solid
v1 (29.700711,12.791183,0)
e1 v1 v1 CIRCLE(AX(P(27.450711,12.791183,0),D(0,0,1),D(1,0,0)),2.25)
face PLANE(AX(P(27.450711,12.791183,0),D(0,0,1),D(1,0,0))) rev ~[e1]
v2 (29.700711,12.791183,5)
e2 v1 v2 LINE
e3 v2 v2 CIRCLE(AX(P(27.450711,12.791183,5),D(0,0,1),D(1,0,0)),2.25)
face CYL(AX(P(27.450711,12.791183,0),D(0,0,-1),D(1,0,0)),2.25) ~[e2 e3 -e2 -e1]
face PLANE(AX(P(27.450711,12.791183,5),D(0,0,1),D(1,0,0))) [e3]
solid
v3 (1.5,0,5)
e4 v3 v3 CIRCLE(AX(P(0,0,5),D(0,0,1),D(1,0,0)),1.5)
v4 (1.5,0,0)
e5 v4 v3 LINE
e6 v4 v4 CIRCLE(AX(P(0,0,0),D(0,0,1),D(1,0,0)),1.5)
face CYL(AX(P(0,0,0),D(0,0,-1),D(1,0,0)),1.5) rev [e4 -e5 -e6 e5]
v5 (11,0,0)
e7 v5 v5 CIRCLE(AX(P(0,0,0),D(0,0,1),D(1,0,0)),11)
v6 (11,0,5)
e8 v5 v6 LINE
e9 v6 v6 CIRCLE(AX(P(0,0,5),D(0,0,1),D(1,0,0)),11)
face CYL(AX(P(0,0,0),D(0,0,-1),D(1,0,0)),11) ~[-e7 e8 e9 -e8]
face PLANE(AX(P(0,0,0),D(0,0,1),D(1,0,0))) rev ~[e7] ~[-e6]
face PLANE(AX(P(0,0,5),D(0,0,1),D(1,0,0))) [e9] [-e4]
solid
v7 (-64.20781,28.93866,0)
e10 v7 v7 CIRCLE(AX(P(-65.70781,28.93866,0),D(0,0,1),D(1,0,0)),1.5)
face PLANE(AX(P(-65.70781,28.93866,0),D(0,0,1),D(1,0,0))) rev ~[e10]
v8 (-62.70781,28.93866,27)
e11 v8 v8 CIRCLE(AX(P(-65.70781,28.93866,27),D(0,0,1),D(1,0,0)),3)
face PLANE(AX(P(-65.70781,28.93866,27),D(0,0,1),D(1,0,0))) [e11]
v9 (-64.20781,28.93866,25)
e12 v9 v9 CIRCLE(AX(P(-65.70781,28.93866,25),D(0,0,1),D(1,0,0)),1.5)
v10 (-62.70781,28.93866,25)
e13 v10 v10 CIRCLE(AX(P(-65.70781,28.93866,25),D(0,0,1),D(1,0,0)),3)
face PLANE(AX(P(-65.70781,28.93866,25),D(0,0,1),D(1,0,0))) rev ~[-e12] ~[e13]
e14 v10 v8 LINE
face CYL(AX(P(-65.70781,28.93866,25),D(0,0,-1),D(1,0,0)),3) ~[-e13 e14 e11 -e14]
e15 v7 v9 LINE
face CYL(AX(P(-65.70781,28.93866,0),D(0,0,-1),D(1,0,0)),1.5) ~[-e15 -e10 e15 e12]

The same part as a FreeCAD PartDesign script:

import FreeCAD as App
import Part
import Sketcher
from FreeCAD import Vector
Q = App.Units.Quantity

doc = App.newDocument("Part")
body = doc.addObject("PartDesign::Body", "Body")
body.AllowCompound = True

# Sketch on XY plane
sketch1 = body.newObject("Sketcher::SketchObject", "Sketch")
sketch1.AttachmentSupport = (doc.getObject("XY_Plane"), [""])
sketch1.MapMode = "FlatFace"
sketch1.addGeometry([
    Part.Circle(Vector(0, 0, 0), Vector(0, 0, 1), 11),
    Part.Circle(Vector(0, 0, 0), Vector(0, 0, 1), 1.5),
    Part.Circle(Vector(27.5, 12.8, 0), Vector(0, 0, 1), 2.2),
], False)
sketch1.addConstraint([
    Sketcher.Constraint("Coincident", 0, 3, -1, 1),
    Sketcher.Constraint("Coincident", 1, 3, -1, 1),
    Sketcher.Constraint("Diameter", 0, Q("22 mm")),
    Sketcher.Constraint("Diameter", 1, Q("3 mm")),
    Sketcher.Constraint("Diameter", 2, Q("4.5 mm")),
    Sketcher.Constraint("DistanceX", -1, 1, 2, 3, Q("27.450711 mm")),
    Sketcher.Constraint("DistanceY", -1, 1, 2, 3, Q("12.791183 mm")),
])
pad1 = body.newObject("PartDesign::Pad", "Pad")
pad1.Profile = sketch1
pad1.Length = 5
body2 = doc.addObject("PartDesign::Body", "Body001")

# Sketch on XY plane
sketch2 = body2.newObject("Sketcher::SketchObject", "Sketch001")
sketch2.AttachmentSupport = (doc.getObject("XY_Plane001"), [""])
sketch2.MapMode = "FlatFace"
sketch2.addGeometry(Part.Circle(Vector(-65.7, 28.9, 0), Vector(0, 0, 1), 1.5), False)
sketch2.addConstraint([
    Sketcher.Constraint("Diameter", 0, Q("3 mm")),
    Sketcher.Constraint("DistanceX", 0, 3, -1, 1, Q("65.70781 mm")),
    Sketcher.Constraint("DistanceY", -1, 1, 0, 3, Q("28.93866 mm")),
])
pad2 = body2.newObject("PartDesign::Pad", "Pad001")
pad2.Profile = sketch2
pad2.Length = 25

# Sketch on XY plane
sketch3 = body2.newObject("Sketcher::SketchObject", "Sketch002")
sketch3.AttachmentSupport = (doc.getObject("XY_Plane001"), [""])
sketch3.MapMode = "FlatFace"
sketch3.AttachmentOffset = App.Placement(Vector(0, 0, 25), App.Rotation())
sketch3.addGeometry(Part.Circle(Vector(-65.7, 28.9, 0), Vector(0, 0, 1), 3), False)
sketch3.addConstraint([
    Sketcher.Constraint("Diameter", 0, Q("6 mm")),
    Sketcher.Constraint("DistanceX", 0, 3, -1, 1, Q("65.70781 mm")),
    Sketcher.Constraint("DistanceY", -1, 1, 0, 3, Q("28.93866 mm")),
])
pad3 = body2.newObject("PartDesign::Pad", "Pad002")
pad3.Profile = sketch3
pad3.Length = 2

doc.recompute()
